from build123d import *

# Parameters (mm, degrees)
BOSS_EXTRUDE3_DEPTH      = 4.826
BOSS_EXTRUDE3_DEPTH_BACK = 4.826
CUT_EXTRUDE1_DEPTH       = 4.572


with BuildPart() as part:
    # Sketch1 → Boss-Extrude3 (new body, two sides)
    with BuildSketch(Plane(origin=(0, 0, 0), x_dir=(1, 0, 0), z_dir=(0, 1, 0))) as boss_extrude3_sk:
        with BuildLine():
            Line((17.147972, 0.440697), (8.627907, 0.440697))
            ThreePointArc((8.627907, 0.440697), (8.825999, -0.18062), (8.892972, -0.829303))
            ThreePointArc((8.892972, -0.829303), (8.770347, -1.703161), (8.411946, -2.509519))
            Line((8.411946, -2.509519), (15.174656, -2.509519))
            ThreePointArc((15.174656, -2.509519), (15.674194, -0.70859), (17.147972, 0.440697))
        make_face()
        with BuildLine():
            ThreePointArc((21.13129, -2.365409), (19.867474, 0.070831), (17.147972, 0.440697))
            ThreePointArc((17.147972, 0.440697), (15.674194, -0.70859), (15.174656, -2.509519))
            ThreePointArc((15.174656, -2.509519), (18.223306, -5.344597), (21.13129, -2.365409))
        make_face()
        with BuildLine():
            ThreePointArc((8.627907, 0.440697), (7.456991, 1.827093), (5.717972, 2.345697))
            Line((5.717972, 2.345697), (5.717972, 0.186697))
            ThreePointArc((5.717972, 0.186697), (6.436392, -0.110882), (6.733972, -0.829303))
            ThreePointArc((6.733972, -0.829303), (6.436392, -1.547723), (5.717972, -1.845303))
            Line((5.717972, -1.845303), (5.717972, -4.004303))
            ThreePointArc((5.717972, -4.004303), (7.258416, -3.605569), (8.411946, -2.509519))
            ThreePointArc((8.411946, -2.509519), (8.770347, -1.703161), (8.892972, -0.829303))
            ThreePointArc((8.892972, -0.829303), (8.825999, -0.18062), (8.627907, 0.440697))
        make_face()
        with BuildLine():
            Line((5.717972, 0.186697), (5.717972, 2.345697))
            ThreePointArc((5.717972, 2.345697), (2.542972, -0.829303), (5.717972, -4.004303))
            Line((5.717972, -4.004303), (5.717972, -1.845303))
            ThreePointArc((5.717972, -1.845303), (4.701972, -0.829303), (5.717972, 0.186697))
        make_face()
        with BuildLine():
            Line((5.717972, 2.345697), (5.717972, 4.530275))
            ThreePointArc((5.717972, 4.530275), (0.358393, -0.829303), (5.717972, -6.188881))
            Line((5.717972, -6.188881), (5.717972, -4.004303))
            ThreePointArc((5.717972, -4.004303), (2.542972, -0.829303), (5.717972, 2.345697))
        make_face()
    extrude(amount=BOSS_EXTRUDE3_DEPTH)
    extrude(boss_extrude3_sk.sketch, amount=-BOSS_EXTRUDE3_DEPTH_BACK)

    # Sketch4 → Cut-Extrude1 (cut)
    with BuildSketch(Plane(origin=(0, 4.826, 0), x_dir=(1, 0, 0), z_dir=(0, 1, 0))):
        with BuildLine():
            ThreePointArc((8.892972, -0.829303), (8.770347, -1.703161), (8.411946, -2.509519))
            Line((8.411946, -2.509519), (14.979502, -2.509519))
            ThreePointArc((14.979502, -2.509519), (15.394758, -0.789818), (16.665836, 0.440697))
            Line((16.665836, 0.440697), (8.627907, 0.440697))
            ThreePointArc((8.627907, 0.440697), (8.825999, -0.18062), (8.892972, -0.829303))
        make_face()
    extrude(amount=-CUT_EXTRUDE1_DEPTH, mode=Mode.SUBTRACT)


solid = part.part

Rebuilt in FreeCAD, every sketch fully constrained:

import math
import FreeCAD as App
import Part
import Sketcher

V = App.Vector
Q = App.Units.Quantity

doc = App.newDocument("Part")
body = doc.addObject("PartDesign::Body", "Body")

sketch1 = body.newObject("Sketcher::SketchObject", "Sketch")
sketch1.AttachmentSupport = (doc.getObject("XZ_Plane"), [""])
sketch1.MapMode = "FlatFace"
sketch1.addGeometry(Part.ArcOfCircle(Part.Circle(V(18.2, 2.4, 0), V(0, 0, 1), 3), math.radians(0), math.radians(177)), False)
sketch1.addGeometry(Part.ArcOfCircle(Part.Circle(V(18.2, 2.4, 0), V(0, 0, 1), 3), math.radians(-110), math.radians(0)), False)
sketch1.addGeometry(Part.LineSegment(V(17.1, -0.4, 0), V(8.6, -0.4, 0)), False)
sketch1.addGeometry(Part.ArcOfCircle(Part.Circle(V(5.7, 0.8, 0), V(0, 0, 1), 3.2), math.radians(-90), math.radians(-24)), False)
sketch1.addGeometry(Part.LineSegment(V(5.7, -2.3, 0), V(5.7, -4.5, 0)), False)
sketch1.addGeometry(Part.ArcOfCircle(Part.Circle(V(5.7, 0.8, 0), V(0, 0, 1), 5.4), math.radians(90), math.radians(270)), False)
sketch1.addGeometry(Part.LineSegment(V(5.7, 6.2, 0), V(5.7, 4, 0)), False)
sketch1.addGeometry(Part.ArcOfCircle(Part.Circle(V(5.7, 0.8, 0), V(0, 0, 1), 3.2), math.radians(32), math.radians(90)), False)
sketch1.addGeometry(Part.LineSegment(V(8.4, 2.5, 0), V(15.2, 2.5, 0)), False)
sketch1.addGeometry(Part.ArcOfCircle(Part.Circle(V(5.7, 0.8, 0), V(0, 0, 1), 1), math.radians(0), math.radians(90)), False)
sketch1.addGeometry(Part.ArcOfCircle(Part.Circle(V(5.7, 0.8, 0), V(0, 0, 1), 1), math.radians(90), math.radians(270)), False)
sketch1.addGeometry(Part.ArcOfCircle(Part.Circle(V(5.7, 0.8, 0), V(0, 0, 1), 1), math.radians(-90), math.radians(0)), False)
sketch1.addConstraint(Sketcher.Constraint("Tangent", 0, 1, 1, 2))
sketch1.addConstraint(Sketcher.Constraint("Coincident", 1, 1, 2, 1))
sketch1.addConstraint(Sketcher.Constraint("Coincident", 2, 2, 3, 2))
sketch1.addConstraint(Sketcher.Constraint("Coincident", 3, 1, 4, 1))
sketch1.addConstraint(Sketcher.Constraint("Coincident", 4, 2, 5, 2))
sketch1.addConstraint(Sketcher.Constraint("Coincident", 5, 1, 6, 1))
sketch1.addConstraint(Sketcher.Constraint("Coincident", 6, 2, 7, 2))
sketch1.addConstraint(Sketcher.Constraint("Coincident", 7, 1, 8, 1))
sketch1.addConstraint(Sketcher.Constraint("Coincident", 8, 2, 0, 2))
sketch1.addConstraint(Sketcher.Constraint("Tangent", 9, 2, 10, 1))
sketch1.addConstraint(Sketcher.Constraint("Tangent", 10, 2, 11, 1))
sketch1.addConstraint(Sketcher.Constraint("Tangent", 11, 2, 9, 1))
sketch1.addConstraint(Sketcher.Constraint("Horizontal", 2))
sketch1.addConstraint(Sketcher.Constraint("Vertical", 4))
sketch1.addConstraint(Sketcher.Constraint("Vertical", 6))
sketch1.addConstraint(Sketcher.Constraint("Horizontal", 8))
sketch1.addConstraint(Sketcher.Constraint("Coincident", 5, 3, 3, 3))
sketch1.addConstraint(Sketcher.Constraint("Coincident", 7, 3, 3, 3))
sketch1.addConstraint(Sketcher.Constraint("Coincident", 9, 3, 3, 3))
sketch1.addConstraint(Sketcher.Constraint("Equal", 0, 1))
sketch1.addConstraint(Sketcher.Constraint("Horizontal", 1, 3, 0, 1))
sketch1.addConstraint(Sketcher.Constraint("Horizontal", 10, 3, 11, 2))
sketch1.addConstraint(Sketcher.Constraint("Vertical", 11, 3, 3, 1))
sketch1.addConstraint(Sketcher.Constraint("Vertical", 4, 2, 5, 1))
sketch1.addConstraint(Sketcher.Constraint("Vertical", 6, 2, 9, 2))
sketch1.addConstraint(Sketcher.Constraint("Vertical", 9, 2, 10, 2))
sketch1.addConstraint(Sketcher.Constraint("Equal", 4, 6))
sketch1.addConstraint(Sketcher.Constraint("Radius", 9, Q("0.0400001 in")))
sketch1.addConstraint(Sketcher.Constraint("Radius", 3, Q("0.1249999 in")))
sketch1.addConstraint(Sketcher.Constraint("DistanceX", 3, 3, 1, 1, Q("0.4499999 in")))
sketch1.addConstraint(Sketcher.Constraint("DistanceY", 1, 1, 3, 3, Q("0.0499999 in")))
sketch1.addConstraint(Sketcher.Constraint("Radius", 0, Q("2.98006 mm")))
sketch1.addConstraint(Sketcher.Constraint("DistanceY", -1, 1, 7, 1, Q("0.0988 in")))
sketch1.addConstraint(Sketcher.Constraint("Radius", 5, Q("5.359578 mm")))
sketch1.addConstraint(Sketcher.Constraint("DistanceX", 8, 1, 8, 2, Q("6.76271 mm")))
sketch1.addConstraint(Sketcher.Constraint("DistanceY", -1, 1, 3, 3, Q("0.8293 mm")))
sketch1.addConstraint(Sketcher.Constraint("DistanceX", -1, 1, 0, 3, Q("18.15123 mm")))
pad1 = body.newObject("PartDesign::Pad", "Pad")
pad1.Profile = sketch1
pad1.Type = "TwoLengths"
pad1.Length = Q("0.19 in")
pad1.Length2 = Q("0.19 in")
pad1.Reversed = True

sketch2 = body.newObject("Sketcher::SketchObject", "Sketch001")
sketch2.AttachmentSupport = (doc.getObject("XZ_Plane"), [""])
sketch2.MapMode = "FlatFace"
sketch2.AttachmentOffset = App.Placement(V(0, 0, -0.19 * 25.4), App.Rotation())
sketch2.addGeometry(Part.ArcOfCircle(Part.Circle(V(5.7, 0.8, 0), V(0, 0, 1), 3.2), math.radians(0), math.radians(32)), False)
sketch2.addGeometry(Part.LineSegment(V(8.4, 2.5, 0), V(15, 2.5, 0)), False)
sketch2.addGeometry(Part.ArcOfCircle(Part.Circle(V(18.2, 2.4, 0), V(0, 0, 1), 3.2), math.radians(177), math.radians(242)), False)
sketch2.addGeometry(Part.LineSegment(V(16.7, -0.4, 0), V(8.6, -0.4, 0)), False)
sketch2.addGeometry(Part.ArcOfCircle(Part.Circle(V(5.7, 0.8, 0), V(0, 0, 1), 3.2), math.radians(-24), math.radians(0)), False)
sketch2.addConstraint(Sketcher.Constraint("Coincident", 0, 2, 1, 1))
sketch2.addConstraint(Sketcher.Constraint("Coincident", 1, 2, 2, 1))
sketch2.addConstraint(Sketcher.Constraint("Coincident", 2, 2, 3, 1))
sketch2.addConstraint(Sketcher.Constraint("Coincident", 3, 2, 4, 1))
sketch2.addConstraint(Sketcher.Constraint("Coincident", 4, 2, 0, 1))
sketch2.addConstraint(Sketcher.Constraint("Horizontal", 1))
sketch2.addConstraint(Sketcher.Constraint("Horizontal", 3))
sketch2.addConstraint(Sketcher.Constraint("Coincident", 4, 3, 0, 3))
sketch2.addConstraint(Sketcher.Constraint("Radius", 2, Q("0.1250001 in")))
sketch2.addConstraint(Sketcher.Constraint("DistanceY", 2, 2, 0, 3, Q("0.0499999 in")))
sketch2.addConstraint(Sketcher.Constraint("DistanceY", 3, 2, 4, 2, Q("0.05 in")))
sketch2.addConstraint(Sketcher.Constraint("Radius", 0, Q("3.175009 mm")))
sketch2.addConstraint(Sketcher.Constraint("DistanceY", -1, 1, 0, 2, Q("0.0988 in")))
sketch2.addConstraint(Sketcher.Constraint("DistanceX", 3, 2, 3, 1, Q("8.037929 mm")))
sketch2.addConstraint(Sketcher.Constraint("DistanceY", -1, 1, 0, 3, Q("0.829299 mm")))
sketch2.addConstraint(Sketcher.Constraint("DistanceX", 1, 1, 1, 2, Q("6.567556 mm")))
sketch2.addConstraint(Sketcher.Constraint("DistanceX", -1, 1, 2, 3, Q("18.151231 mm")))
pocket1 = body.newObject("PartDesign::Pocket", "Pocket")
pocket1.Profile = sketch2
pocket1.Length = Q("0.18 in")
pocket1.Reversed = True

doc.recompute()
